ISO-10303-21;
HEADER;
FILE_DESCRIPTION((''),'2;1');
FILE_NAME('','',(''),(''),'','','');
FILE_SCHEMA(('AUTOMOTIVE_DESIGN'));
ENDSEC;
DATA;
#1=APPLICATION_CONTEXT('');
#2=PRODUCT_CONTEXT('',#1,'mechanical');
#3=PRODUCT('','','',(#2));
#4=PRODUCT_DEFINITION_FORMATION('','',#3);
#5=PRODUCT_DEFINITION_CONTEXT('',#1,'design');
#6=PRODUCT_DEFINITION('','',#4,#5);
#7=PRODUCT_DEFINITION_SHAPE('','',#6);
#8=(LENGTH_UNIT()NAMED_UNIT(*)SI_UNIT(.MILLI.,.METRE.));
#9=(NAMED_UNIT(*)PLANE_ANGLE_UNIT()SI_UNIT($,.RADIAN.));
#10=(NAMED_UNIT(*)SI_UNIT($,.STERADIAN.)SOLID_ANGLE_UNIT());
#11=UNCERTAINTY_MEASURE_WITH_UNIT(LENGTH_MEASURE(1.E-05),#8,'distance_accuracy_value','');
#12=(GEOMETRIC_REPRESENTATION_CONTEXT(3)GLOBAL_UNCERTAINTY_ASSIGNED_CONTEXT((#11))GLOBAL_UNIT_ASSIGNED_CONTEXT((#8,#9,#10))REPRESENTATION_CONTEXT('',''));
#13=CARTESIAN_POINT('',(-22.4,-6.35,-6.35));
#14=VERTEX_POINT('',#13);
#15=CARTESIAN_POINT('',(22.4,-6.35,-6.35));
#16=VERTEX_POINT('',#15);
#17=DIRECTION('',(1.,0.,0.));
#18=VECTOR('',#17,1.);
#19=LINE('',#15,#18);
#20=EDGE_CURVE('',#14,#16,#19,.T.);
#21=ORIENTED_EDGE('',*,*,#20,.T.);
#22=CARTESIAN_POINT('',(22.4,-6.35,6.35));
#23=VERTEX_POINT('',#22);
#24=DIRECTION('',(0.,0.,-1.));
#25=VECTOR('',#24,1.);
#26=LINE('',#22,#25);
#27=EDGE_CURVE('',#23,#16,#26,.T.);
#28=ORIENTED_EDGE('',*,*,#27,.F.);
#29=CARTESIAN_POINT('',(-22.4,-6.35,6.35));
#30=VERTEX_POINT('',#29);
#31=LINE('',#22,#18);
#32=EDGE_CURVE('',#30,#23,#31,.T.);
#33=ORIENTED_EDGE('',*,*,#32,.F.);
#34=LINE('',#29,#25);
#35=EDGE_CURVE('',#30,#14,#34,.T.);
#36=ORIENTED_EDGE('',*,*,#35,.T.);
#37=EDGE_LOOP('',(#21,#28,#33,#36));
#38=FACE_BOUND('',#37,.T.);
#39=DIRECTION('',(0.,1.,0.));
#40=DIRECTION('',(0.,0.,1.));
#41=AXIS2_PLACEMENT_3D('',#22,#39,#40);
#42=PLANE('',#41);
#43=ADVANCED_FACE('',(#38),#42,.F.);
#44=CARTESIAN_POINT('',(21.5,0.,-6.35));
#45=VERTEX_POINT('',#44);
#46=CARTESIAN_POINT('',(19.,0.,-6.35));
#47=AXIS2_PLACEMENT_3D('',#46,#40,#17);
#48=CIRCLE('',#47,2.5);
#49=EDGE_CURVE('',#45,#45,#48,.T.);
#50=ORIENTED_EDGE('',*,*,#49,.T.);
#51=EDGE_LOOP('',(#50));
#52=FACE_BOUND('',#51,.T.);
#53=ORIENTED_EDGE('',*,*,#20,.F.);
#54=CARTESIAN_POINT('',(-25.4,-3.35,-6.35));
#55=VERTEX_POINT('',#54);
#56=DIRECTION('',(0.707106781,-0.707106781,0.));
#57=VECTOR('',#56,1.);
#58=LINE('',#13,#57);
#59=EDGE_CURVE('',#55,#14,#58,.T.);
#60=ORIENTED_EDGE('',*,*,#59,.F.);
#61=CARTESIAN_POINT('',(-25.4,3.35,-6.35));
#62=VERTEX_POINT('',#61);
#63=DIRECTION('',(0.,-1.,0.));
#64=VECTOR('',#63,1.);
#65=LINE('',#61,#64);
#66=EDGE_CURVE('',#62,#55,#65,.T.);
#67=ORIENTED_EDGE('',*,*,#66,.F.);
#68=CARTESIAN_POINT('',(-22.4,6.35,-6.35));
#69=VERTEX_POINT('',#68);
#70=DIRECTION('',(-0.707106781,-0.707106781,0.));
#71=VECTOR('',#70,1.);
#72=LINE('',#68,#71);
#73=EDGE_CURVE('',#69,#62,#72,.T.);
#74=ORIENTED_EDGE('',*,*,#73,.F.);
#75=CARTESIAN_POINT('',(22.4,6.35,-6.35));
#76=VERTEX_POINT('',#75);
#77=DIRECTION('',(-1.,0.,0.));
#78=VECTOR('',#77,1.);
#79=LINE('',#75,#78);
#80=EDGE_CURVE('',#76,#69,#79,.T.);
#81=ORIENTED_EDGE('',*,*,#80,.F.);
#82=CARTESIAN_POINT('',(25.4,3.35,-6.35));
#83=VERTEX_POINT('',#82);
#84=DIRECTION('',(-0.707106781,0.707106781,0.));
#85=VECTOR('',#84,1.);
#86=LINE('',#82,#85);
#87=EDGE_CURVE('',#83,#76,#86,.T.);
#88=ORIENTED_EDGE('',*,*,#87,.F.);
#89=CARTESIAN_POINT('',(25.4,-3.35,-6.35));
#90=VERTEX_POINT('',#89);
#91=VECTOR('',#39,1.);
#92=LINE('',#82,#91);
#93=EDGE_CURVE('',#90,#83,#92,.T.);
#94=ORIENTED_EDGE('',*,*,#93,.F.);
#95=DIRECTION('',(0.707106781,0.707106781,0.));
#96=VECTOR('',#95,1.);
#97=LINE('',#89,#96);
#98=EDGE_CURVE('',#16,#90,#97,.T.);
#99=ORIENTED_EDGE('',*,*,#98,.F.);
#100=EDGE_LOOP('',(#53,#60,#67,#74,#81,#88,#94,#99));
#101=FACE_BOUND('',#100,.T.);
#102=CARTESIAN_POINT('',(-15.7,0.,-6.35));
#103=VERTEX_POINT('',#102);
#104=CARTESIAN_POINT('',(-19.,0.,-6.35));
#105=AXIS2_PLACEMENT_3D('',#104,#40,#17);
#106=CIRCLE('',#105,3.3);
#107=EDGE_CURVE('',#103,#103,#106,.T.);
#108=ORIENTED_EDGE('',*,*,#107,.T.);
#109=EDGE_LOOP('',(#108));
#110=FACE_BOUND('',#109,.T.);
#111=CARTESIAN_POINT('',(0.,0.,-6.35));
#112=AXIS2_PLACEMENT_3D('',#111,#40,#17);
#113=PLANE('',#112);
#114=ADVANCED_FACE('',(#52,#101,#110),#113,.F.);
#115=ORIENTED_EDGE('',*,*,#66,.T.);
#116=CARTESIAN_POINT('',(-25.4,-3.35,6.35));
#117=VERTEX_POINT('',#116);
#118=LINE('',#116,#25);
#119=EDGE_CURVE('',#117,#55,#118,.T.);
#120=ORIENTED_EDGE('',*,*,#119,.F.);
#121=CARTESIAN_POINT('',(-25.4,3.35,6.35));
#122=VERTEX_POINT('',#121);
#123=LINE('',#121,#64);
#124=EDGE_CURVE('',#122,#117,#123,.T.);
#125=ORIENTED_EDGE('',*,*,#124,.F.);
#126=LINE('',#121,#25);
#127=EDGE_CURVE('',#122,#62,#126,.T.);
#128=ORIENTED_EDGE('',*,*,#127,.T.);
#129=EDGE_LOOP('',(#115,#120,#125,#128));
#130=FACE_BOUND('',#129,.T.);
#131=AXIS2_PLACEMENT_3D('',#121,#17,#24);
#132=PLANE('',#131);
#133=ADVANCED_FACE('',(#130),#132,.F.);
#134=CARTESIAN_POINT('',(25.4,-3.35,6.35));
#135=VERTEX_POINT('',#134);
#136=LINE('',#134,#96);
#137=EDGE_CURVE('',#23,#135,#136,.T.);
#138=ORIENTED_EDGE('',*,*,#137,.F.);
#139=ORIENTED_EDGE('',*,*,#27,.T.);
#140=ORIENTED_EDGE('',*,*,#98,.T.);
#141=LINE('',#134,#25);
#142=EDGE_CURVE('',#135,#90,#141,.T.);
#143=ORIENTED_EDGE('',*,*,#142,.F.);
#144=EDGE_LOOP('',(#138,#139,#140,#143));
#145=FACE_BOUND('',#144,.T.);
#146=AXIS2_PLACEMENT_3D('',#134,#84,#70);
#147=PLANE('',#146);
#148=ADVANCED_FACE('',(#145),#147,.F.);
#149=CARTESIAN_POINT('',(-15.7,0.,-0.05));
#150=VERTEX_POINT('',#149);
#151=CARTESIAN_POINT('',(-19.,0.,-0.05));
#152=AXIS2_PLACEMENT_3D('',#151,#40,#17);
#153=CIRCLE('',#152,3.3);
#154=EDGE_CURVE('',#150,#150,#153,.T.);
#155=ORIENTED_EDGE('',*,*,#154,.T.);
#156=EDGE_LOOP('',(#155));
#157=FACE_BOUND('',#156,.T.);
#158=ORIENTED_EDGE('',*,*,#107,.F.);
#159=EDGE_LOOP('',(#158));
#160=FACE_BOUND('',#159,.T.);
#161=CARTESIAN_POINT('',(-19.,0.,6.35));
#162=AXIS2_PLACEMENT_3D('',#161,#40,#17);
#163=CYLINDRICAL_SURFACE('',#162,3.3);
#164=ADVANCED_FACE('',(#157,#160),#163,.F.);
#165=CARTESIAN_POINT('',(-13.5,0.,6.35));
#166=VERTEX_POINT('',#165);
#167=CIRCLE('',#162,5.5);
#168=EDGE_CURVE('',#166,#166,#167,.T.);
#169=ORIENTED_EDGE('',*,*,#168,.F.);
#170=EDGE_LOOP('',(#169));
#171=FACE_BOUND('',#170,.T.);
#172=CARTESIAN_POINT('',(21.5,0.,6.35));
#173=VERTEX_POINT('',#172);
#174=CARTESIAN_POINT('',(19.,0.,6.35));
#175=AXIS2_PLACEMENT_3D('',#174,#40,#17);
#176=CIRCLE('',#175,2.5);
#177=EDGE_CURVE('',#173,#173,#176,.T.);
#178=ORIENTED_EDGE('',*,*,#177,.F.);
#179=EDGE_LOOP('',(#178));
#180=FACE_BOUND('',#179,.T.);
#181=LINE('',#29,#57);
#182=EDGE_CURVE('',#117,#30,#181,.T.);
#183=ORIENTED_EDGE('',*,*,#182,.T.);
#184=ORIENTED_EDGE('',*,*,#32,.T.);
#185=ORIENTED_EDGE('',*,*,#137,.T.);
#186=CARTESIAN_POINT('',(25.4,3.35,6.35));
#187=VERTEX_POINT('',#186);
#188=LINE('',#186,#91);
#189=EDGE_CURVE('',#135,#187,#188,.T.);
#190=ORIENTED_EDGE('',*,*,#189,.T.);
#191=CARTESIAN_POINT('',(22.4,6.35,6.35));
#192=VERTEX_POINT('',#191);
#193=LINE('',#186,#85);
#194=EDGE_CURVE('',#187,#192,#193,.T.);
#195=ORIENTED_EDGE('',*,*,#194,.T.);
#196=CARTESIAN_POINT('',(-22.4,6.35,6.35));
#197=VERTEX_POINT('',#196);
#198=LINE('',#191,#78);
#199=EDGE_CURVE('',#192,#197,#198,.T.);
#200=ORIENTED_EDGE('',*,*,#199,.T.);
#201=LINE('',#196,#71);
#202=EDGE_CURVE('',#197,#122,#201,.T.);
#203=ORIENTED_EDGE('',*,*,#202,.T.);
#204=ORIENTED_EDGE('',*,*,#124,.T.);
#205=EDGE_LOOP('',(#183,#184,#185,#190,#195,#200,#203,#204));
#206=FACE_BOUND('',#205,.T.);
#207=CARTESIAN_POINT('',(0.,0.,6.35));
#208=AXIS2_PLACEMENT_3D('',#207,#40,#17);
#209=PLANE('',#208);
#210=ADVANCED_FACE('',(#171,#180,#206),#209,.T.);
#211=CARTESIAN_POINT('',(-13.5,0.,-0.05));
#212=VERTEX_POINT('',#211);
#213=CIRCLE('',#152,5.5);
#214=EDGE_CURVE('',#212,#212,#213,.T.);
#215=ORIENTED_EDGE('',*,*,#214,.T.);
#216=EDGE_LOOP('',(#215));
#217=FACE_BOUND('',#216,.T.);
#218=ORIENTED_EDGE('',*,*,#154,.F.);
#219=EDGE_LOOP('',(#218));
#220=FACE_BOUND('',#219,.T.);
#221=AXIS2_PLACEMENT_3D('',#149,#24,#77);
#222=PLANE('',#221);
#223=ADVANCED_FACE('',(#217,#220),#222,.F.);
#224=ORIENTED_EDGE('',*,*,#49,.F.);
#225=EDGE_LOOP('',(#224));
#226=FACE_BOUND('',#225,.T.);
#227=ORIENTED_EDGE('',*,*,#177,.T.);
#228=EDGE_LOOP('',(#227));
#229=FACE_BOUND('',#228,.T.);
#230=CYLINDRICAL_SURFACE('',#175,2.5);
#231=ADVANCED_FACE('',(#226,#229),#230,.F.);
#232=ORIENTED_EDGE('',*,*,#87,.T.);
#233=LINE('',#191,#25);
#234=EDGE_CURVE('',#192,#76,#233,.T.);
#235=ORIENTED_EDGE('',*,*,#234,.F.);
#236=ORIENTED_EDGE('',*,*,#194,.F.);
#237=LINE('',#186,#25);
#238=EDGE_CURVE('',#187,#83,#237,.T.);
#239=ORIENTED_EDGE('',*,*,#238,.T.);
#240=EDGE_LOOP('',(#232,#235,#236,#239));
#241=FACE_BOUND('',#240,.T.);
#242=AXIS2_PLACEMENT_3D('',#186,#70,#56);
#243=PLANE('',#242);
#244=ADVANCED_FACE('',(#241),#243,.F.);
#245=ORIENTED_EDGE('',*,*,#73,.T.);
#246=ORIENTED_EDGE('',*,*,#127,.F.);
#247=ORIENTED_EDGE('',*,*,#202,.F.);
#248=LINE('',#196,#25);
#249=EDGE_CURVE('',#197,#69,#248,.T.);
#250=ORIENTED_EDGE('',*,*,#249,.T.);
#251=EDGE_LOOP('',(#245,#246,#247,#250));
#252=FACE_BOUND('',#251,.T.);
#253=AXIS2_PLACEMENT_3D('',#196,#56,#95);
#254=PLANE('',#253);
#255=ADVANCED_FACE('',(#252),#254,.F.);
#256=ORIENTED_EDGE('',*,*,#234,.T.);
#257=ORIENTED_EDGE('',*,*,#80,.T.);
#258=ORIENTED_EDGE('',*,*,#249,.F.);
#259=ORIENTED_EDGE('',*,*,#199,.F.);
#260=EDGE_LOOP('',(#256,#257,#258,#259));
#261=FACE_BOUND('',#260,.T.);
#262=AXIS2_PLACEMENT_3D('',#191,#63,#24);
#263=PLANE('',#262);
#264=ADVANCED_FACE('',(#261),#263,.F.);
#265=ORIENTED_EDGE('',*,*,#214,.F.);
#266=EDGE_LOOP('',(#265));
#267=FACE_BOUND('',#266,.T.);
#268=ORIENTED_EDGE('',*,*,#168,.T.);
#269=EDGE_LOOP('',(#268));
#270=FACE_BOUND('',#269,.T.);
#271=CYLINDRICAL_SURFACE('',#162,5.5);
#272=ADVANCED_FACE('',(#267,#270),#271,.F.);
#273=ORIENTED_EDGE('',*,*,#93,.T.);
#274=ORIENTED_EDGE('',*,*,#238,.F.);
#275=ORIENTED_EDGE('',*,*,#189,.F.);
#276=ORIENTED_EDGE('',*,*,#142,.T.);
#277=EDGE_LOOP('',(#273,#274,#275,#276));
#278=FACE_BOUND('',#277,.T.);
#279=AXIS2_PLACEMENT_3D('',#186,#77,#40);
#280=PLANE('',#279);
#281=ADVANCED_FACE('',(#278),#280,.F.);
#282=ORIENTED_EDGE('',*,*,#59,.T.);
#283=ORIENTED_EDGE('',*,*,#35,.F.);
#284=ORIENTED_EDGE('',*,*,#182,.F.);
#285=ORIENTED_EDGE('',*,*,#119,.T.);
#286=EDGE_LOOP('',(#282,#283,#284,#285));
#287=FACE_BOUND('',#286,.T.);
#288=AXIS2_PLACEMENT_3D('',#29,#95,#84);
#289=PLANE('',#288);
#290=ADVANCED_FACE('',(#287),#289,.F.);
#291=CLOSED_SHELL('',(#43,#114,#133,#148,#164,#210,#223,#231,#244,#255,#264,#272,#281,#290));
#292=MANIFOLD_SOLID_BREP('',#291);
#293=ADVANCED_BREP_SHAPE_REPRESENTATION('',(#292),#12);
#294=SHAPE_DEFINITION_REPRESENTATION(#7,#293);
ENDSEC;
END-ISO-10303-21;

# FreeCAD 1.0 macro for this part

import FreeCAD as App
import Part
import Sketcher
Q = App.Units.Quantity


def add_polygon(sketch, points):
    """Adds a closed chain of lines whose ends are joined by coincident constraints."""
    first, n = sketch.GeometryCount, len(points)
    for a, b in zip(points, points[1:] + points[:1]):
        sketch.addGeometry(Part.LineSegment(App.Vector(*a, 0), App.Vector(*b, 0)), False)
    for i in range(n):
        sketch.addConstraint(Sketcher.Constraint("Coincident", first + i, 2, first + (i + 1) % n, 1))

doc = App.newDocument("Part")
body = doc.addObject("PartDesign::Body", "Body")

sketch1 = doc.addObject("Sketcher::SketchObject", "Sketch")
body.addObject(sketch1)
sketch1.AttachmentSupport = (doc.XY_Plane, [""])
sketch1.MapMode = "FlatFace"
add_polygon(sketch1, [(-22.4, 6.3), (-25.4, 3.4), (-25.4, -3.4), (-22.4, -6.3), (22.4, -6.3), (25.4, -3.4), (25.4, 3.4), (22.4, 6.3)])
sketch1.addConstraint([
    Sketcher.Constraint("Vertical", 1),
    Sketcher.Constraint("Horizontal", 3),
    Sketcher.Constraint("Vertical", 5),
    Sketcher.Constraint("Horizontal", 7),
    Sketcher.Constraint("Symmetric", 0, 2, 4, 2, -1, 1),
    Sketcher.Constraint("Symmetric", 2, 2, 6, 2, -1, 1),
    Sketcher.Constraint("Perpendicular", 0, 2),
    Sketcher.Constraint("Perpendicular", 2, 4),
    Sketcher.Constraint("Perpendicular", 4, 6),
    Sketcher.Constraint("Horizontal", 1, 2, 4, 2),
    Sketcher.Constraint("Vertical", 3, 2, 6, 2),
    Sketcher.Constraint("DistanceX", 3, 1, 3, 2, Q("44.8 mm")),
    Sketcher.Constraint("DistanceY", 1, 2, 1, 1, Q("6.7 mm")),
    Sketcher.Constraint("DistanceX", 1, 2, 2, 2, Q("3 mm")),
])
pad1 = doc.addObject("PartDesign::Pad", "Pad")
body.addObject(pad1)
pad1.Profile = sketch1
pad1.Length = 12.7
pad1.Midplane = True

sketch2 = doc.addObject("Sketcher::SketchObject", "Sketch001")
body.addObject(sketch2)
sketch2.AttachmentSupport = (doc.XY_Plane, [""])
sketch2.MapMode = "FlatFace"
sketch2.AttachmentOffset = App.Placement(App.Vector(0, 0, 6.35), App.Rotation())
sketch2.addGeometry(Part.Circle(App.Vector(19, 0, 0), App.Vector(0, 0, 1), 2.5), False)
sketch2.addConstraint([
    Sketcher.Constraint("PointOnObject", 0, 3, -1),
    Sketcher.Constraint("Diameter", 0, Q("5 mm")),
    Sketcher.Constraint("DistanceX", -1, 1, 0, 3, Q("19 mm")),
])
doc.recompute()
hole = doc.addObject("PartDesign::Hole", "Hole")
body.addObject(hole)
hole.Profile = sketch2
hole.ThreadType = "None"
hole.Diameter = 5
hole.DepthType = "ThroughAll"

sketch3 = doc.addObject("Sketcher::SketchObject", "Sketch002")
body.addObject(sketch3)
sketch3.AttachmentSupport = (doc.XY_Plane, [""])
sketch3.MapMode = "FlatFace"
sketch3.AttachmentOffset = App.Placement(App.Vector(0, 0, 6.35), App.Rotation())
sketch3.addGeometry(Part.Circle(App.Vector(-19, 0, 0), App.Vector(0, 0, 1), 3.3), False)
sketch3.addConstraint([
    Sketcher.Constraint("PointOnObject", 0, 3, -1),
    Sketcher.Constraint("Diameter", 0, Q("6.6 mm")),
    Sketcher.Constraint("DistanceX", 0, 3, -1, 1, Q("19 mm")),
])
doc.recompute()
hole2 = doc.addObject("PartDesign::Hole", "Hole001")
body.addObject(hole2)
hole2.Profile = sketch3
hole2.ThreadType = "None"
hole2.Diameter = 6.6
hole2.DepthType = "ThroughAll"
hole2.HoleCutType = "Counterbore"
hole2.HoleCutDiameter = 11
hole2.HoleCutDepth = 6.4

doc.recompute()
